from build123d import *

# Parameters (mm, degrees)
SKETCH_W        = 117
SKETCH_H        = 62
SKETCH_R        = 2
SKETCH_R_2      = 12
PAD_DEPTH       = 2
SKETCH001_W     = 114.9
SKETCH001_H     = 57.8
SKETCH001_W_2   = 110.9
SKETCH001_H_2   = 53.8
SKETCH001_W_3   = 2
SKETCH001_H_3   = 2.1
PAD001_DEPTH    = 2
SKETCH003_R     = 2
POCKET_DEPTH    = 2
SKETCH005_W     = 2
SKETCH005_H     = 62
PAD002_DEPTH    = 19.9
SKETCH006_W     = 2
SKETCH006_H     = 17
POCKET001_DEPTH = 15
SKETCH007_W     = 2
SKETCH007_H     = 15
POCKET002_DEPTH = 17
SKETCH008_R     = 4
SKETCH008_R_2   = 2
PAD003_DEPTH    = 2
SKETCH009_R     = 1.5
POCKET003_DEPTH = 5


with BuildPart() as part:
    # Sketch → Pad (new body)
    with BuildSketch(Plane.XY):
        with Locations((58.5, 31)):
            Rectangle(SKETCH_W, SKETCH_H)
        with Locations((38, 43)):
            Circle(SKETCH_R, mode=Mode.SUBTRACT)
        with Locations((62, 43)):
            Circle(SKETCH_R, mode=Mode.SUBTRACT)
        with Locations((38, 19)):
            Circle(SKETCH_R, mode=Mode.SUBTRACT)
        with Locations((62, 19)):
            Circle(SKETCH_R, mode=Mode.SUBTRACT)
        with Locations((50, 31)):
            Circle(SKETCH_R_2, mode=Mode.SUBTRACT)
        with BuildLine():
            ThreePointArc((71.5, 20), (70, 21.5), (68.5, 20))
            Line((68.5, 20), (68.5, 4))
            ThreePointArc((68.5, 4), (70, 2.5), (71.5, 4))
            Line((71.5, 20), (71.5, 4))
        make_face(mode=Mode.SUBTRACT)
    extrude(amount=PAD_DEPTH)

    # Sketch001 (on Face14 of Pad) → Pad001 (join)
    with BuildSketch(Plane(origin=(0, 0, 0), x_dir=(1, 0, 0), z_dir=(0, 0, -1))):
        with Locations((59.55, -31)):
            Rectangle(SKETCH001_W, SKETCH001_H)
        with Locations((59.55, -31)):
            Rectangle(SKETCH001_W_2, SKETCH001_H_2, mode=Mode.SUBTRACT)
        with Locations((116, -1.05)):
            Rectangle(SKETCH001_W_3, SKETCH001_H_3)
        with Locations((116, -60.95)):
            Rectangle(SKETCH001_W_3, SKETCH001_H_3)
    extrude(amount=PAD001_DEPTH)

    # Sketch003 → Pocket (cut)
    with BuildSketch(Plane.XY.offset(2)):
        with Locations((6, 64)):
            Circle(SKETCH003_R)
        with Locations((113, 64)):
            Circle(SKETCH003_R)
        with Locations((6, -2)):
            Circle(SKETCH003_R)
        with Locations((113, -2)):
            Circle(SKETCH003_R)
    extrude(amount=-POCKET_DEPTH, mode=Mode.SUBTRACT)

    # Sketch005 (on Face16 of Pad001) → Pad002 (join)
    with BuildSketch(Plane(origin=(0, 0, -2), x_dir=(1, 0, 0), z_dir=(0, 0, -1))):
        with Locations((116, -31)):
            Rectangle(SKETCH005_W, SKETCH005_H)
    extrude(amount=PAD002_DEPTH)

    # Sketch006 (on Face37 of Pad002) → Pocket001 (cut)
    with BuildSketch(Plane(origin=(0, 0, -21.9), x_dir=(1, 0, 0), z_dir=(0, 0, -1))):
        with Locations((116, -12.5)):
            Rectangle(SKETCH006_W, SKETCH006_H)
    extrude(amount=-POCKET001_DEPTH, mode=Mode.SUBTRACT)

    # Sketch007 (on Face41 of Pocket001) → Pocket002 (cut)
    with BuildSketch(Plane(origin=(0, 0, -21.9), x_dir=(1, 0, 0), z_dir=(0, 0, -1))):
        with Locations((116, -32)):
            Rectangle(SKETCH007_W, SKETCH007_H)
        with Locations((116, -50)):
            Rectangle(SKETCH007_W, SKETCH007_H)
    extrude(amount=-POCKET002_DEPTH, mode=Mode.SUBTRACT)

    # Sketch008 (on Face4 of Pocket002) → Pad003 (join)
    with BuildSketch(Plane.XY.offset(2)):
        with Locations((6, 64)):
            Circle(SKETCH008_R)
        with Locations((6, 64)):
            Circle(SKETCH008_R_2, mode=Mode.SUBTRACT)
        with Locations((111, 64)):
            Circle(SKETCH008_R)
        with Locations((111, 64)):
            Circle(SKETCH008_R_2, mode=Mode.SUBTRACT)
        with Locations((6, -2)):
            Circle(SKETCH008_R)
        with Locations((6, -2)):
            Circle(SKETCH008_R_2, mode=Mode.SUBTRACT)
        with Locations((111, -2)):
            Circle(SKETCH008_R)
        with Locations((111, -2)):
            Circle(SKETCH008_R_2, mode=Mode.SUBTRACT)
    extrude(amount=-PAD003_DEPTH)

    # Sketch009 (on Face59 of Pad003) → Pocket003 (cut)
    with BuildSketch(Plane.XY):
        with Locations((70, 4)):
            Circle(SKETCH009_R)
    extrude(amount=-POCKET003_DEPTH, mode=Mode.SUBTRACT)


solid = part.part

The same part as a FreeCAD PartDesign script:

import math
import FreeCAD as App
import Part
import Sketcher

doc = App.newDocument("Part")
body = doc.addObject("PartDesign::Body", "Body")

# Sketch on XY plane
sketch1 = body.newObject("Sketcher::SketchObject", "Sketch")
sketch1.AttachmentSupport = (doc.getObject("XY_Plane"), [""])
sketch1.MapMode = "FlatFace"
sketch1.addGeometry([
    Part.LineSegment(App.Vector(0, 62, 0), App.Vector(0, 0, 0)),  # 0
    Part.LineSegment(App.Vector(0, 0, 0), App.Vector(117, 0, 0)),  # 1
    Part.LineSegment(App.Vector(117, 0, 0), App.Vector(117, 62, 0)),  # 2
    Part.LineSegment(App.Vector(117, 62, 0), App.Vector(0, 62, 0)),  # 3
    Part.Circle(App.Vector(38, 19, 0), App.Vector(0, 0, 1), 2),  # 4
    Part.ArcOfCircle(Part.Circle(App.Vector(70, 20, 0), App.Vector(0, 0, 1), 1.5), math.radians(0), math.radians(180)),  # 5
    Part.LineSegment(App.Vector(71.5, 20, 0), App.Vector(71.5, 4, 0)),  # 6
    Part.ArcOfCircle(Part.Circle(App.Vector(70, 4, 0), App.Vector(0, 0, 1), 1.5), math.radians(180), math.radians(360)),  # 7
    Part.LineSegment(App.Vector(68.5, 4, 0), App.Vector(68.5, 20, 0)),  # 8
    Part.Circle(App.Vector(62, 19, 0), App.Vector(0, 0, 1), 2),  # 9
    Part.Circle(App.Vector(50, 31, 0), App.Vector(0, 0, 1), 12),  # 10
    Part.Circle(App.Vector(38, 43, 0), App.Vector(0, 0, 1), 2),  # 11
    Part.Circle(App.Vector(62, 43, 0), App.Vector(0, 0, 1), 2),  # 12
], False)
sketch1.addConstraint([
    Sketcher.Constraint("Coincident", 0, 2, 1, 1),
    Sketcher.Constraint("Coincident", 1, 2, 2, 1),
    Sketcher.Constraint("Coincident", 2, 2, 3, 1),
    Sketcher.Constraint("Coincident", 3, 2, 0, 1),
    Sketcher.Constraint("Tangent", 5, 1, 6, 1),
    Sketcher.Constraint("Tangent", 6, 2, 7, 2),
    Sketcher.Constraint("Tangent", 7, 1, 8, 1),
    Sketcher.Constraint("Tangent", 8, 2, 5, 2),
    Sketcher.Constraint("Vertical", 0),
    Sketcher.Constraint("Horizontal", 1),
    Sketcher.Constraint("Vertical", 2),
    Sketcher.Constraint("Horizontal", 3),
    Sketcher.Constraint("Vertical", 6),
    Sketcher.Constraint("Vertical", 8),
    Sketcher.Constraint("Coincident", 0, 2, -1, 1),
    Sketcher.Constraint("Equal", 4, 9),
    Sketcher.Constraint("Equal", 9, 11),
    Sketcher.Constraint("Equal", 11, 12),
    Sketcher.Constraint("Horizontal", 4, 3, 9, 3),
    Sketcher.Constraint("Horizontal", 11, 3, 12, 3),
    Sketcher.Constraint("Vertical", 4, 3, 11, 3),
    Sketcher.Constraint("Vertical", 9, 3, 12, 3),
    Sketcher.Constraint("Diameter", 4, 4.0),
    Sketcher.Constraint("Diameter", 10, 24.0),
    Sketcher.Constraint("Radius", 5, 1.5),
    Sketcher.Constraint("DistanceX", 1, 1, 1, 2, 117.0),
    Sketcher.Constraint("DistanceY", 0, 2, 0, 1, 62.0),
    Sketcher.Constraint("DistanceY", 6, 2, 6, 1, 16.0),
    Sketcher.Constraint("DistanceX", -1, 1, 4, 3, 38.0),
    Sketcher.Constraint("DistanceY", -1, 1, 4, 3, 19.0),
    Sketcher.Constraint("DistanceX", -1, 1, 5, 3, 70.0),
    Sketcher.Constraint("DistanceY", -1, 1, 5, 3, 20.0),
    Sketcher.Constraint("DistanceX", -1, 1, 9, 3, 62.0),
    Sketcher.Constraint("DistanceX", -1, 1, 10, 3, 50.0),
    Sketcher.Constraint("DistanceY", -1, 1, 10, 3, 31.0),
    Sketcher.Constraint("DistanceY", -1, 1, 11, 3, 43.0),
])
pad1 = body.newObject("PartDesign::Pad", "Pad")
pad1.Profile = sketch1
pad1.Length = 2

# Sketch on XY plane
sketch2 = body.newObject("Sketcher::SketchObject", "Sketch001")
sketch2.AttachmentSupport = (doc.getObject("XY_Plane"), [""])
sketch2.MapMode = "FlatFace"
sketch2.addGeometry([
    Part.LineSegment(App.Vector(2.1, 2.1, 0), App.Vector(2.1, 59.9, 0)),  # 0
    Part.LineSegment(App.Vector(2.1, 59.9, 0), App.Vector(115, 59.9, 0)),  # 1
    Part.LineSegment(App.Vector(115, 59.9, 0), App.Vector(115, 62, 0)),  # 2
    Part.LineSegment(App.Vector(115, 62, 0), App.Vector(117, 62, 0)),  # 3
    Part.LineSegment(App.Vector(117, 62, 0), App.Vector(117, 0, 0)),  # 4
    Part.LineSegment(App.Vector(117, 0, 0), App.Vector(115, 0, 0)),  # 5
    Part.LineSegment(App.Vector(115, 0, 0), App.Vector(115, 2.1, 0)),  # 6
    Part.LineSegment(App.Vector(115, 2.1, 0), App.Vector(2.1, 2.1, 0)),  # 7
    Part.LineSegment(App.Vector(115, 57.9, 0), App.Vector(4.1, 57.9, 0)),  # 8
    Part.LineSegment(App.Vector(4.1, 57.9, 0), App.Vector(4.1, 4.1, 0)),  # 9
    Part.LineSegment(App.Vector(4.1, 4.1, 0), App.Vector(115, 4.1, 0)),  # 10
    Part.LineSegment(App.Vector(115, 4.1, 0), App.Vector(115, 57.9, 0)),  # 11
], False)
sketch2.addConstraint([
    Sketcher.Constraint("Coincident", 0, 2, 1, 1),
    Sketcher.Constraint("Coincident", 1, 2, 2, 1),
    Sketcher.Constraint("Coincident", 2, 2, 3, 1),
    Sketcher.Constraint("Coincident", 3, 2, 4, 1),
    Sketcher.Constraint("Coincident", 4, 2, 5, 1),
    Sketcher.Constraint("Coincident", 5, 2, 6, 1),
    Sketcher.Constraint("Coincident", 6, 2, 7, 1),
    Sketcher.Constraint("Coincident", 7, 2, 0, 1),
    Sketcher.Constraint("Coincident", 8, 2, 9, 1),
    Sketcher.Constraint("Coincident", 9, 2, 10, 1),
    Sketcher.Constraint("Coincident", 10, 2, 11, 1),
    Sketcher.Constraint("Coincident", 11, 2, 8, 1),
    Sketcher.Constraint("Vertical", 0),
    Sketcher.Constraint("Horizontal", 1),
    Sketcher.Constraint("Vertical", 2),
    Sketcher.Constraint("Horizontal", 3),
    Sketcher.Constraint("Vertical", 4),
    Sketcher.Constraint("Horizontal", 5),
    Sketcher.Constraint("Vertical", 6),
    Sketcher.Constraint("Horizontal", 7),
    Sketcher.Constraint("Horizontal", 8),
    Sketcher.Constraint("Vertical", 9),
    Sketcher.Constraint("Horizontal", 10),
    Sketcher.Constraint("Vertical", 11),
    Sketcher.Constraint("PointOnObject", 4, 2, -1),
    Sketcher.Constraint("Vertical", 2, 2, 5, 2),
    Sketcher.Constraint("Vertical", 6, 2, 10, 2),
    Sketcher.Constraint("Equal", 2, 6),
    Sketcher.Constraint("DistanceX", 3, 1, 3, 2, 2.0),
    Sketcher.Constraint("DistanceY", 4, 2, 4, 1, 62.0),
    Sketcher.Constraint("DistanceX", 1, 1, 1, 2, 112.9),
    Sketcher.Constraint("DistanceX", 8, 2, 8, 1, 110.9),
    Sketcher.Constraint("DistanceY", 0, 1, 0, 2, 57.8),
    Sketcher.Constraint("DistanceY", 9, 2, 9, 1, 53.8),
    Sketcher.Constraint("DistanceX", -1, 1, 1, 2, 115.0),
    Sketcher.Constraint("DistanceY", 8, 2, 0, 2, 2.0),
])
pad2 = body.newObject("PartDesign::Pad", "Pad001")
pad2.Profile = sketch2
pad2.Length = 2
pad2.Reversed = True

# Sketch on XY plane
sketch3 = body.newObject("Sketcher::SketchObject", "Sketch002")
sketch3.AttachmentSupport = (doc.getObject("XY_Plane"), [""])
sketch3.MapMode = "FlatFace"
sketch3.AttachmentOffset = App.Placement(App.Vector(0, 0, 2), App.Rotation())
sketch3.addGeometry([
    Part.Circle(App.Vector(6, 64, 0), App.Vector(0, 0, 1), 2),
    Part.Circle(App.Vector(113, 64, 0), App.Vector(0, 0, 1), 2),
    Part.Circle(App.Vector(6, -2, 0), App.Vector(0, 0, 1), 2),
    Part.Circle(App.Vector(113, -2, 0), App.Vector(0, 0, 1), 2),
], False)
sketch3.addConstraint([
    Sketcher.Constraint("Equal", 0, 1),
    Sketcher.Constraint("Equal", 1, 2),
    Sketcher.Constraint("Equal", 2, 3),
    Sketcher.Constraint("Horizontal", 0, 3, 1, 3),
    Sketcher.Constraint("Horizontal", 2, 3, 3, 3),
    Sketcher.Constraint("Vertical", 0, 3, 2, 3),
    Sketcher.Constraint("Vertical", 1, 3, 3, 3),
    Sketcher.Constraint("Diameter", 0, 4.0),
    Sketcher.Constraint("DistanceX", -1, 1, 0, 3, 6.0),
    Sketcher.Constraint("DistanceY", -1, 1, 0, 3, 64.0),
    Sketcher.Constraint("DistanceX", -1, 1, 1, 3, 113.0),
    Sketcher.Constraint("DistanceY", 2, 3, -1, 1, 2.0),
])
pocket1 = body.newObject("PartDesign::Pocket", "Pocket")
pocket1.Profile = sketch3
pocket1.Length = 2

# Sketch on XY plane
sketch4 = body.newObject("Sketcher::SketchObject", "Sketch003")
sketch4.AttachmentSupport = (doc.getObject("XY_Plane"), [""])
sketch4.MapMode = "FlatFace"
sketch4.AttachmentOffset = App.Placement(App.Vector(0, 0, -2), App.Rotation())
sketch4.addGeometry([
    Part.LineSegment(App.Vector(115, 0, 0), App.Vector(115, 62, 0)),
    Part.LineSegment(App.Vector(115, 62, 0), App.Vector(117, 62, 0)),
    Part.LineSegment(App.Vector(117, 62, 0), App.Vector(117, 0, 0)),
    Part.LineSegment(App.Vector(117, 0, 0), App.Vector(115, 0, 0)),
], False)
sketch4.addConstraint([
    Sketcher.Constraint("Coincident", 0, 2, 1, 1),
    Sketcher.Constraint("Coincident", 1, 2, 2, 1),
    Sketcher.Constraint("Coincident", 2, 2, 3, 1),
    Sketcher.Constraint("Coincident", 3, 2, 0, 1),
    Sketcher.Constraint("Vertical", 0),
    Sketcher.Constraint("Horizontal", 1),
    Sketcher.Constraint("Vertical", 2),
    Sketcher.Constraint("Horizontal", 3),
    Sketcher.Constraint("PointOnObject", 2, 2, -1),
    Sketcher.Constraint("DistanceX", 1, 1, 1, 2, 2.0),
    Sketcher.Constraint("DistanceY", 0, 1, 0, 2, 62.0),
    Sketcher.Constraint("DistanceX", -1, 1, 0, 2, 115.0),
])
pad3 = body.newObject("PartDesign::Pad", "Pad002")
pad3.Profile = sketch4
pad3.Length = 19.9
pad3.Reversed = True

# Sketch on XY plane
sketch5 = body.newObject("Sketcher::SketchObject", "Sketch004")
sketch5.AttachmentSupport = (doc.getObject("XY_Plane"), [""])
sketch5.MapMode = "FlatFace"
sketch5.AttachmentOffset = App.Placement(App.Vector(0, 0, -21.9), App.Rotation())
sketch5.addGeometry([
    Part.LineSegment(App.Vector(115, 4, 0), App.Vector(115, 21, 0)),
    Part.LineSegment(App.Vector(115, 21, 0), App.Vector(117, 21, 0)),
    Part.LineSegment(App.Vector(117, 21, 0), App.Vector(117, 4, 0)),
    Part.LineSegment(App.Vector(117, 4, 0), App.Vector(115, 4, 0)),
], False)
sketch5.addConstraint([
    Sketcher.Constraint("Coincident", 0, 2, 1, 1),
    Sketcher.Constraint("Coincident", 1, 2, 2, 1),
    Sketcher.Constraint("Coincident", 2, 2, 3, 1),
    Sketcher.Constraint("Coincident", 3, 2, 0, 1),
    Sketcher.Constraint("Vertical", 0),
    Sketcher.Constraint("Horizontal", 1),
    Sketcher.Constraint("Vertical", 2),
    Sketcher.Constraint("Horizontal", 3),
    Sketcher.Constraint("DistanceX", 1, 1, 1, 2, 2.0),
    Sketcher.Constraint("DistanceY", 0, 1, 0, 2, 17.0),
    Sketcher.Constraint("DistanceX", -1, 1, 0, 2, 115.0),
    Sketcher.Constraint("DistanceY", -1, 1, 0, 2, 21.0),
])
pocket2 = body.newObject("PartDesign::Pocket", "Pocket001")
pocket2.Profile = sketch5
pocket2.Length = 15
pocket2.Reversed = True

# Sketch on XY plane
sketch6 = body.newObject("Sketcher::SketchObject", "Sketch005")
sketch6.AttachmentSupport = (doc.getObject("XY_Plane"), [""])
sketch6.MapMode = "FlatFace"
sketch6.AttachmentOffset = App.Placement(App.Vector(0, 0, -21.9), App.Rotation())
sketch6.addGeometry([
    Part.LineSegment(App.Vector(115, 24.5, 0), App.Vector(115, 39.5, 0)),  # 0
    Part.LineSegment(App.Vector(115, 39.5, 0), App.Vector(117, 39.5, 0)),  # 1
    Part.LineSegment(App.Vector(117, 39.5, 0), App.Vector(117, 24.5, 0)),  # 2
    Part.LineSegment(App.Vector(117, 24.5, 0), App.Vector(115, 24.5, 0)),  # 3
    Part.LineSegment(App.Vector(115, 42.5, 0), App.Vector(115, 57.5, 0)),  # 4
    Part.LineSegment(App.Vector(115, 57.5, 0), App.Vector(117, 57.5, 0)),  # 5
    Part.LineSegment(App.Vector(117, 57.5, 0), App.Vector(117, 42.5, 0)),  # 6
    Part.LineSegment(App.Vector(117, 42.5, 0), App.Vector(115, 42.5, 0)),  # 7
], False)
sketch6.addConstraint([
    Sketcher.Constraint("Coincident", 0, 2, 1, 1),
    Sketcher.Constraint("Coincident", 1, 2, 2, 1),
    Sketcher.Constraint("Coincident", 2, 2, 3, 1),
    Sketcher.Constraint("Coincident", 3, 2, 0, 1),
    Sketcher.Constraint("Coincident", 4, 2, 5, 1),
    Sketcher.Constraint("Coincident", 5, 2, 6, 1),
    Sketcher.Constraint("Coincident", 6, 2, 7, 1),
    Sketcher.Constraint("Coincident", 7, 2, 4, 1),
    Sketcher.Constraint("Vertical", 0),
    Sketcher.Constraint("Horizontal", 1),
    Sketcher.Constraint("Vertical", 2),
    Sketcher.Constraint("Horizontal", 3),
    Sketcher.Constraint("Vertical", 4),
    Sketcher.Constraint("Horizontal", 5),
    Sketcher.Constraint("Vertical", 6),
    Sketcher.Constraint("Horizontal", 7),
    Sketcher.Constraint("Vertical", 3, 2, 4, 2),
    Sketcher.Constraint("Vertical", 2, 2, 5, 2),
    Sketcher.Constraint("Equal", 2, 4),
    Sketcher.Constraint("DistanceX", 1, 1, 1, 2, 2.0),
    Sketcher.Constraint("DistanceY", 0, 1, 0, 2, 15.0),
    Sketcher.Constraint("DistanceX", -1, 1, 0, 2, 115.0),
    Sketcher.Constraint("DistanceY", 0, 2, 4, 2, 18.0),
    Sketcher.Constraint("DistanceY", -1, 1, 0, 2, 39.5),
])
pocket3 = body.newObject("PartDesign::Pocket", "Pocket002")
pocket3.Profile = sketch6
pocket3.Length = 17
pocket3.Reversed = True

# Sketch on XY plane
sketch7 = body.newObject("Sketcher::SketchObject", "Sketch006")
sketch7.AttachmentSupport = (doc.getObject("XY_Plane"), [""])
sketch7.MapMode = "FlatFace"
sketch7.AttachmentOffset = App.Placement(App.Vector(0, 0, 2), App.Rotation())
sketch7.addGeometry([
    Part.Circle(App.Vector(6, 64, 0), App.Vector(0, 0, 1), 4),  # 0
    Part.Circle(App.Vector(6, 64, 0), App.Vector(0, 0, 1), 2),  # 1
    Part.Circle(App.Vector(111, 64, 0), App.Vector(0, 0, 1), 4),  # 2
    Part.Circle(App.Vector(111, 64, 0), App.Vector(0, 0, 1), 2),  # 3
    Part.Circle(App.Vector(6, -2, 0), App.Vector(0, 0, 1), 4),  # 4
    Part.Circle(App.Vector(6, -2, 0), App.Vector(0, 0, 1), 2),  # 5
    Part.Circle(App.Vector(111, -2, 0), App.Vector(0, 0, 1), 4),  # 6
    Part.Circle(App.Vector(111, -2, 0), App.Vector(0, 0, 1), 2),  # 7
], False)
sketch7.addConstraint([
    Sketcher.Constraint("Coincident", 1, 3, 0, 3),
    Sketcher.Constraint("Coincident", 3, 3, 2, 3),
    Sketcher.Constraint("Coincident", 5, 3, 4, 3),
    Sketcher.Constraint("Coincident", 7, 3, 6, 3),
    Sketcher.Constraint("Equal", 0, 2),
    Sketcher.Constraint("Equal", 1, 3),
    Sketcher.Constraint("Equal", 2, 4),
    Sketcher.Constraint("Equal", 3, 5),
    Sketcher.Constraint("Equal", 4, 6),
    Sketcher.Constraint("Equal", 5, 7),
    Sketcher.Constraint("Horizontal", 1, 3, 2, 3),
    Sketcher.Constraint("Horizontal", 5, 3, 6, 3),
    Sketcher.Constraint("Vertical", 1, 3, 4, 3),
    Sketcher.Constraint("Vertical", 3, 3, 6, 3),
    Sketcher.Constraint("Diameter", 0, 8.0),
    Sketcher.Constraint("Diameter", 1, 4.0),
    Sketcher.Constraint("DistanceX", -1, 1, 0, 3, 6.0),
    Sketcher.Constraint("DistanceY", -1, 1, 0, 3, 64.0),
    Sketcher.Constraint("DistanceX", -1, 1, 2, 3, 111.0),
    Sketcher.Constraint("DistanceY", 4, 3, -1, 1, 2.0),
])
pad4 = body.newObject("PartDesign::Pad", "Pad003")
pad4.Profile = sketch7
pad4.Length = 2
pad4.Reversed = True

# Sketch on XY plane
sketch8 = body.newObject("Sketcher::SketchObject", "Sketch007")
sketch8.AttachmentSupport = (doc.getObject("XY_Plane"), [""])
sketch8.MapMode = "FlatFace"
sketch8.addGeometry(Part.Circle(App.Vector(70, 4, 0), App.Vector(0, 0, 1), 1.5), False)
sketch8.addConstraint([
    Sketcher.Constraint("Diameter", 0, 3.0),
    Sketcher.Constraint("DistanceX", -1, 1, 0, 3, 70.0),
    Sketcher.Constraint("DistanceY", -1, 1, 0, 3, 4.0),
])
pocket4 = body.newObject("PartDesign::Pocket", "Pocket003")
pocket4.Profile = sketch8
pocket4.Length = 5

doc.recompute()
